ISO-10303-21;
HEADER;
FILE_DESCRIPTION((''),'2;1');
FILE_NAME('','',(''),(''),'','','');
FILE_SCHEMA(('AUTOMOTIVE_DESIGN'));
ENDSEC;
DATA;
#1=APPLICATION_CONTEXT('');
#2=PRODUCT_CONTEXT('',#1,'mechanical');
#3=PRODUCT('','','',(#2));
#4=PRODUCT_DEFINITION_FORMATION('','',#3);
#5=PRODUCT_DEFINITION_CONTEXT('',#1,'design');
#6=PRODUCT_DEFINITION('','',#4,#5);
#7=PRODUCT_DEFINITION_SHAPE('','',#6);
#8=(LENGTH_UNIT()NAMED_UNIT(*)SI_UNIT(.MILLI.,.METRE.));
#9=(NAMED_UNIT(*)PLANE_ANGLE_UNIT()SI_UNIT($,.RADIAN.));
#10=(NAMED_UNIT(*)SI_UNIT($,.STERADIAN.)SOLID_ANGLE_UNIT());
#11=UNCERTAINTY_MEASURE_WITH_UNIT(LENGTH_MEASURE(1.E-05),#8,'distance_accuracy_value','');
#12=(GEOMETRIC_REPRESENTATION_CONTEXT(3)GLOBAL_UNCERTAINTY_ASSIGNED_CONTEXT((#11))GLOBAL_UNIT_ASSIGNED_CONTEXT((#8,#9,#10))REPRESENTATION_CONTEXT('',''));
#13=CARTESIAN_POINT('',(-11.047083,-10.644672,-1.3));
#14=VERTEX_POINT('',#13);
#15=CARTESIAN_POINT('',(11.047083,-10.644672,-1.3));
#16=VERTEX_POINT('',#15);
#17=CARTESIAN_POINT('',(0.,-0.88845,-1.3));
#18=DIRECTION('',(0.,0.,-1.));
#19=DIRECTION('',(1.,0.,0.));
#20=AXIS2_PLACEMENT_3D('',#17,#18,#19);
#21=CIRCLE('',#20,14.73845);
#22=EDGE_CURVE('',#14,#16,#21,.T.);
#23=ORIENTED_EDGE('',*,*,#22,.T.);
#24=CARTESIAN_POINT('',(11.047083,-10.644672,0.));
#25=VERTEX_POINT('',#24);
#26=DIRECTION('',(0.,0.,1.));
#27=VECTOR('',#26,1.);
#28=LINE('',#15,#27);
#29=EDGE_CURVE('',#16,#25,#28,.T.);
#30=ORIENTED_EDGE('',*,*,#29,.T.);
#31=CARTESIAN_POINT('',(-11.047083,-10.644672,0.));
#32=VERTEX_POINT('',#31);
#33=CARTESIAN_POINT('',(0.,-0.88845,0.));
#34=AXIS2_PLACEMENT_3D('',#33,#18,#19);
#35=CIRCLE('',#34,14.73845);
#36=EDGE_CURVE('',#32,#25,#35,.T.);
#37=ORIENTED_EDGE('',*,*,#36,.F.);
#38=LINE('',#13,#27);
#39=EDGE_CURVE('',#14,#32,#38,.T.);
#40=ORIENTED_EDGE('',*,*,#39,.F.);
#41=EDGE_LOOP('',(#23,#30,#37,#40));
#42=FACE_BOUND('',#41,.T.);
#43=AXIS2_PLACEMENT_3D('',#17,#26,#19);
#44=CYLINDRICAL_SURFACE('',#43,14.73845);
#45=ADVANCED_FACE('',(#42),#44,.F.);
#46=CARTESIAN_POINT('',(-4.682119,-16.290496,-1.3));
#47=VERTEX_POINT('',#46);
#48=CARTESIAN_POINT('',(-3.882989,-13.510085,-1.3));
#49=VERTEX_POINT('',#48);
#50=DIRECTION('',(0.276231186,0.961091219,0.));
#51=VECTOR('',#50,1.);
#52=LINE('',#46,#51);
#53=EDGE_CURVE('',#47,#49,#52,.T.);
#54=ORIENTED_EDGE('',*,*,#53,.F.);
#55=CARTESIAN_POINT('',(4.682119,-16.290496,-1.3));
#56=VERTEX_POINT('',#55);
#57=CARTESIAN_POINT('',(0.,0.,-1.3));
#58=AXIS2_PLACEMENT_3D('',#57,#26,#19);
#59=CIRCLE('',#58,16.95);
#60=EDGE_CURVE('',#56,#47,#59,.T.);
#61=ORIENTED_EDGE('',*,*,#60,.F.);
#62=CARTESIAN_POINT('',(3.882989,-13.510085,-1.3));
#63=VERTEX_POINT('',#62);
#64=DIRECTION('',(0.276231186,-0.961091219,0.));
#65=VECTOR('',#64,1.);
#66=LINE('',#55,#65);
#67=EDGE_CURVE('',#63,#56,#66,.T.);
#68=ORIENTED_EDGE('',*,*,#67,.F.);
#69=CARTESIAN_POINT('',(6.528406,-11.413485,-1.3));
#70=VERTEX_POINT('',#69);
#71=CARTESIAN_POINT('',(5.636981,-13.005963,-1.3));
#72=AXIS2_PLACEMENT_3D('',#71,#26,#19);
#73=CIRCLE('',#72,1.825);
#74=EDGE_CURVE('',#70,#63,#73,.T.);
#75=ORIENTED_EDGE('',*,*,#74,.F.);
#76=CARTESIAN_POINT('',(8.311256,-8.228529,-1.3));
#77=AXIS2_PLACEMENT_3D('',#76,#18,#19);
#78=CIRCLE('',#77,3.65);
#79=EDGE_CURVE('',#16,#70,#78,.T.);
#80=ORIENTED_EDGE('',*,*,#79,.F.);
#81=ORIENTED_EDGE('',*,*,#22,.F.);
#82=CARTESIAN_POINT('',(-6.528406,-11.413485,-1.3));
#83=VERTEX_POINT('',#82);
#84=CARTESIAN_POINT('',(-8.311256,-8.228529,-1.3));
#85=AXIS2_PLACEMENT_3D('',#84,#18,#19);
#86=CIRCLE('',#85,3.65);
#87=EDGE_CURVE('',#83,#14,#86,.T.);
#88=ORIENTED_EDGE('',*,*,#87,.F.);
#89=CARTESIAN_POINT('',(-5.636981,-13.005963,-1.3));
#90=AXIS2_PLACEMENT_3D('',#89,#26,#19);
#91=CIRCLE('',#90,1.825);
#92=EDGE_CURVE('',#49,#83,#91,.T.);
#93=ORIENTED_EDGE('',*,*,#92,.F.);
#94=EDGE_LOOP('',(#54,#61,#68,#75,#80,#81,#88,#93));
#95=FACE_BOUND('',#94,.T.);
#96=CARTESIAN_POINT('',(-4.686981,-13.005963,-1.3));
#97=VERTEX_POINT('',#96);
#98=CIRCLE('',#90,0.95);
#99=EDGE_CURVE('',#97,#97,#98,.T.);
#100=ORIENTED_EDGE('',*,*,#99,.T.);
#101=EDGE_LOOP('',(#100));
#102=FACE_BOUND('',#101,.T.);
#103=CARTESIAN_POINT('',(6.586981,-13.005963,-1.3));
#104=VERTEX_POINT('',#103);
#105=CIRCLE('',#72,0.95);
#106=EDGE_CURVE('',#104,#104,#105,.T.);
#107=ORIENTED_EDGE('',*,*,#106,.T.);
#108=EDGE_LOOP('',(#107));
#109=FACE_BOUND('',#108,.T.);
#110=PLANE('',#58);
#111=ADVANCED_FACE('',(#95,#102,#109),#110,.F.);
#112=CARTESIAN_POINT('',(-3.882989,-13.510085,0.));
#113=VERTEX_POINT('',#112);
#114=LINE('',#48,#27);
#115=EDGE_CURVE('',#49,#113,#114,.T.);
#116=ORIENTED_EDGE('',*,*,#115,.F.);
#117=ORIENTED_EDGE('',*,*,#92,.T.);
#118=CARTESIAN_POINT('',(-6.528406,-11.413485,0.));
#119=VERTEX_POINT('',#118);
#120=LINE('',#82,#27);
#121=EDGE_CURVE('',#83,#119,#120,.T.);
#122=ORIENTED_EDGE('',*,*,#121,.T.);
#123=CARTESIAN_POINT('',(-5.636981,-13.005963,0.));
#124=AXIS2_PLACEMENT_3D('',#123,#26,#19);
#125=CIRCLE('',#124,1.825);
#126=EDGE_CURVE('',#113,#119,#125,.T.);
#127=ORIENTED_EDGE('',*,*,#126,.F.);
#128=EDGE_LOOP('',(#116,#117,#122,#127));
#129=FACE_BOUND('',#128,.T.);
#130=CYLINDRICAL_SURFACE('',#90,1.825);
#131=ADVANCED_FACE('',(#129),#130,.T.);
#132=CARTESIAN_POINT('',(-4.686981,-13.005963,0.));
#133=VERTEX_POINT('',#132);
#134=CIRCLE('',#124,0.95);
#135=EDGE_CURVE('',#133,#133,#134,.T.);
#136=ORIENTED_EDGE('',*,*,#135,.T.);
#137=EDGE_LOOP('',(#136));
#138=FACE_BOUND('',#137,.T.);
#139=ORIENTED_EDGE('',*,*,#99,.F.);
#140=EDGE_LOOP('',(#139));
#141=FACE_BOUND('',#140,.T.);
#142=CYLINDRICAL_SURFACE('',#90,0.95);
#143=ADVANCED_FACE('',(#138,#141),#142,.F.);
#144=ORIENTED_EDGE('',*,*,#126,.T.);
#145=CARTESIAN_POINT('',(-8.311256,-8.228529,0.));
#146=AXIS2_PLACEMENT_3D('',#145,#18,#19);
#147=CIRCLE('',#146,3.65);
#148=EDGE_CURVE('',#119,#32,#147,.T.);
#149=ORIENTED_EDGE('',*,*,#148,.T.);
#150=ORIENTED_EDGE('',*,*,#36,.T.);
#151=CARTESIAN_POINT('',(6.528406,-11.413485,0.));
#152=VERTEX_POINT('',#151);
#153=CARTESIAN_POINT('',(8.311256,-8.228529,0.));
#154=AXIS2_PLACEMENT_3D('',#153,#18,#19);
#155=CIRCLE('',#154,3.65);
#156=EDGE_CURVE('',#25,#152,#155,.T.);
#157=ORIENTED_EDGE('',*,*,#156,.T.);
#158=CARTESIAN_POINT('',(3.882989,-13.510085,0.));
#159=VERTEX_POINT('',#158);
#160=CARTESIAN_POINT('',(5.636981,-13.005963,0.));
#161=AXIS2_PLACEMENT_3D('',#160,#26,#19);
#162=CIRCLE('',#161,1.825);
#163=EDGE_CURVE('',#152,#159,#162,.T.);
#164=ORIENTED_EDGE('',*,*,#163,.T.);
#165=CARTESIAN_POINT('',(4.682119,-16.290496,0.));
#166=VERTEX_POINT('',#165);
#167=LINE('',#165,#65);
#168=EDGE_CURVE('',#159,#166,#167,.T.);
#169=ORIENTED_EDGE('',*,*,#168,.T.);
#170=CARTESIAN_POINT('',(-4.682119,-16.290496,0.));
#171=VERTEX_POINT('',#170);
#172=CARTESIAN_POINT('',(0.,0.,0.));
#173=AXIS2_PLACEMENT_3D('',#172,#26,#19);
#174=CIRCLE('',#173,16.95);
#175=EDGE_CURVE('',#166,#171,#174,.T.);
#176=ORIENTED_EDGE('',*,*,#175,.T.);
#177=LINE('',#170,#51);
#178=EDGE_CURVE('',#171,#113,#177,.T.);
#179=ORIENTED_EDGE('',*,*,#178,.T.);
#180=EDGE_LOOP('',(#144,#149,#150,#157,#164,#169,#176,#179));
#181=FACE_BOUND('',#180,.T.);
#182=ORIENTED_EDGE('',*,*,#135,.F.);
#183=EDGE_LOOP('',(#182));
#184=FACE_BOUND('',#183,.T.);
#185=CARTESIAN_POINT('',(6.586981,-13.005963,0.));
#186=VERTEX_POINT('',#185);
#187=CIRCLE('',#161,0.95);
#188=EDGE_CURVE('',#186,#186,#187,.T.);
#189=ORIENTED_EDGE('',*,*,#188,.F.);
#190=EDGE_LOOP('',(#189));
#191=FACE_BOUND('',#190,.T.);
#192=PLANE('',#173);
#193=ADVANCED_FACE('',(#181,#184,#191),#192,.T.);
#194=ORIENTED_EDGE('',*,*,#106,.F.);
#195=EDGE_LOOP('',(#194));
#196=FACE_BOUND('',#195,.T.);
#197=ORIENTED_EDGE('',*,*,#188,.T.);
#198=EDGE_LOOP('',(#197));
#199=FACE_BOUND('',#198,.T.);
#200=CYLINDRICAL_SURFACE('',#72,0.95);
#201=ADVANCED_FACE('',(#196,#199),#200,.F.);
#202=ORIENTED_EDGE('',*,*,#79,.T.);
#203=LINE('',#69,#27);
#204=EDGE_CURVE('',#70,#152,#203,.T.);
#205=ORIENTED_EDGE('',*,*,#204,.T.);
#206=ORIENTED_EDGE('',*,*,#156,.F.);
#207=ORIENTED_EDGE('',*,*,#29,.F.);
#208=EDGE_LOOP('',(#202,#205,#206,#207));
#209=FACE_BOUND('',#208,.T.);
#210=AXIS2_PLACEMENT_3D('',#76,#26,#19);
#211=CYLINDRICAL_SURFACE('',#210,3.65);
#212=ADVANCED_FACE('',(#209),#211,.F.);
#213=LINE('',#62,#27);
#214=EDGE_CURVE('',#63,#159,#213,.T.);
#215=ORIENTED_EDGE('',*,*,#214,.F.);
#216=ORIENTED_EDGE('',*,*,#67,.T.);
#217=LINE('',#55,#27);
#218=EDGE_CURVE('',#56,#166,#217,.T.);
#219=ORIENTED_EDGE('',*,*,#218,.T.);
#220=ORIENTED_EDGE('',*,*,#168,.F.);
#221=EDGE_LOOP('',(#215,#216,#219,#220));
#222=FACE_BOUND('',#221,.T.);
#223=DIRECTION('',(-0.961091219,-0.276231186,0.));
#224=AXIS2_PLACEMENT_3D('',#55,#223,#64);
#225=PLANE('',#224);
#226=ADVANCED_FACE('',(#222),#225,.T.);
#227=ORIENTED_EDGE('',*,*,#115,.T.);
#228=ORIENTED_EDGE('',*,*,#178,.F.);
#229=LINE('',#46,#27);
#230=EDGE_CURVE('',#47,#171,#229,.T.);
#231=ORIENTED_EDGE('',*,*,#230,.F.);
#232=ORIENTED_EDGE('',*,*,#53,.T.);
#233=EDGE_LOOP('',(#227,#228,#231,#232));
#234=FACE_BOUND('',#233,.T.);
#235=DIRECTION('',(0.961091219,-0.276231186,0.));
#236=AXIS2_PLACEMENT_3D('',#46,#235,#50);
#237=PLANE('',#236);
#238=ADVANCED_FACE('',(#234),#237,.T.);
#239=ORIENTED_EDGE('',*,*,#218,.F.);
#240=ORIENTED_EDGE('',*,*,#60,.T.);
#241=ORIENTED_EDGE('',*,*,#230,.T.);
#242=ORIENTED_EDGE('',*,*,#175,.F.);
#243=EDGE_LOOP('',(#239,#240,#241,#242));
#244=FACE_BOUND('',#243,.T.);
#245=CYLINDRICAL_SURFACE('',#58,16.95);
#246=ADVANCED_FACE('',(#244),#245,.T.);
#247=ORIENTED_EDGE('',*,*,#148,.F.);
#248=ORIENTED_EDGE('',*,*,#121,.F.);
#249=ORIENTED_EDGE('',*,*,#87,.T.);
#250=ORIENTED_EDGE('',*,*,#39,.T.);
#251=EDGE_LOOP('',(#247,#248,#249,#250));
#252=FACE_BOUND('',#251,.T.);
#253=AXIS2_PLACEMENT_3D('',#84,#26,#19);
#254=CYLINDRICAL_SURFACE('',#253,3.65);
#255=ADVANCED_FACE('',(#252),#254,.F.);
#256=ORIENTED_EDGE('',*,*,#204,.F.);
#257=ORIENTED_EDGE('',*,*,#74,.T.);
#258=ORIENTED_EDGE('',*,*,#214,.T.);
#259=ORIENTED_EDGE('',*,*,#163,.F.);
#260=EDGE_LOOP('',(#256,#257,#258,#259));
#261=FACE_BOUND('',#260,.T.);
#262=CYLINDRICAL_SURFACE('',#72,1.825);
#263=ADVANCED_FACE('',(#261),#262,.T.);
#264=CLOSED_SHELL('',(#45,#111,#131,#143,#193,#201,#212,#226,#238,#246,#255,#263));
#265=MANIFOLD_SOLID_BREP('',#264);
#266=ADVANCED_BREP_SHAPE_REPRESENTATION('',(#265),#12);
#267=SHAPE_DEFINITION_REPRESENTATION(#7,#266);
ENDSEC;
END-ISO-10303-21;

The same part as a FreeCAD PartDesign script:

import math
import FreeCAD as App
import Part
import Sketcher
from FreeCAD import Vector

doc = App.newDocument("Part")
body = doc.addObject("PartDesign::Body", "Body")

# Sketch on XY plane
sketch1 = doc.addObject("Sketcher::SketchObject", "Sketch")
body.addObject(sketch1)
sketch1.AttachmentSupport = (doc.XY_Plane, [""])
sketch1.MapMode = "FlatFace"
sketch1.addGeometry([
    Part.LineSegment(Vector(3.882989, -13.510085, 0), Vector(4.682119, -16.290496, 0)),  # 0
    Part.ArcOfCircle(Part.Circle(Vector(0, 0, 0), Vector(0, 0, 1), 16.95), math.radians(-73.964602), math.radians(253.964602)),  # 1
    Part.LineSegment(Vector(-4.682119, -16.290496, 0), Vector(-3.882989, -13.510085, 0)),  # 2
    Part.ArcOfCircle(Part.Circle(Vector(-5.636981, -13.005963, 0), Vector(0, 0, 1), 1.825), math.radians(-16.035398), math.radians(119.238892)),  # 3
    Part.ArcOfCircle(Part.Circle(Vector(-8.311256, -8.228529, 0), Vector(0, 0, 1), 3.65), math.radians(-138.550694), math.radians(-60.761108)),  # 4
    Part.ArcOfCircle(Part.Circle(Vector(0, -0.88845, 0), Vector(0, 0, 1), 14.73845), math.radians(-41.449306), math.radians(221.449306)),  # 5
    Part.ArcOfCircle(Part.Circle(Vector(8.311256, -8.228529, 0), Vector(0, 0, 1), 3.65), math.radians(-119.238892), math.radians(-41.449306)),  # 6
    Part.ArcOfCircle(Part.Circle(Vector(5.636981, -13.005963, 0), Vector(0, 0, 1), 1.825), math.radians(60.761108), math.radians(196.035398)),  # 7
    Part.Circle(Vector(5.636981, -13.005963, 0), Vector(0, 0, 1), 0.95),  # 8
    Part.Circle(Vector(-5.636981, -13.005963, 0), Vector(0, 0, 1), 0.95),  # 9
], False)
sketch1.addConstraint([
    Sketcher.Constraint("Coincident", 0, 2, 1, 1),
    Sketcher.Constraint("Coincident", 1, 2, 2, 1),
    Sketcher.Constraint("Tangent", 2, 2, 3, 1),
    Sketcher.Constraint("Tangent", 3, 2, 4, 2),
    Sketcher.Constraint("Tangent", 4, 1, 5, 2),
    Sketcher.Constraint("Tangent", 5, 1, 6, 2),
    Sketcher.Constraint("Tangent", 6, 1, 7, 1),
    Sketcher.Constraint("Tangent", 7, 2, 0, 1),
    Sketcher.Constraint("Coincident", 1, 3, -1, 1),
    Sketcher.Constraint("Coincident", 8, 3, 7, 3),
    Sketcher.Constraint("Coincident", 9, 3, 3, 3),
    Sketcher.Constraint("Equal", 4, 6),
    Sketcher.Constraint("Equal", 3, 7),
    Sketcher.Constraint("Equal", 8, 9),
    Sketcher.Constraint("Symmetric", 4, 3, 6, 3, -2),
    Sketcher.Constraint("Symmetric", 2, 2, 7, 2, -2),
    Sketcher.Constraint("Diameter", 8, 1.9),
    Sketcher.Constraint("Radius", 1, 16.95),
    Sketcher.Constraint("Radius", 4, 3.65),
    Sketcher.Constraint("Radius", 3, 1.825),
    Sketcher.Constraint("Radius", 5, 14.73845),
    Sketcher.Constraint("DistanceX", 3, 3, 0, 2, 10.319099),
    Sketcher.Constraint("DistanceY", 2, 2, 3, 2, 2.0966),
    Sketcher.Constraint("DistanceX", 3, 3, -1, 1, 5.636981),
    Sketcher.Constraint("DistanceY", 4, 3, -1, 1, 8.228529),
])
pad1 = doc.addObject("PartDesign::Pad", "Pad")
body.addObject(pad1)
pad1.Profile = sketch1
pad1.Length = 1.3
pad1.Reversed = True

doc.recompute()
